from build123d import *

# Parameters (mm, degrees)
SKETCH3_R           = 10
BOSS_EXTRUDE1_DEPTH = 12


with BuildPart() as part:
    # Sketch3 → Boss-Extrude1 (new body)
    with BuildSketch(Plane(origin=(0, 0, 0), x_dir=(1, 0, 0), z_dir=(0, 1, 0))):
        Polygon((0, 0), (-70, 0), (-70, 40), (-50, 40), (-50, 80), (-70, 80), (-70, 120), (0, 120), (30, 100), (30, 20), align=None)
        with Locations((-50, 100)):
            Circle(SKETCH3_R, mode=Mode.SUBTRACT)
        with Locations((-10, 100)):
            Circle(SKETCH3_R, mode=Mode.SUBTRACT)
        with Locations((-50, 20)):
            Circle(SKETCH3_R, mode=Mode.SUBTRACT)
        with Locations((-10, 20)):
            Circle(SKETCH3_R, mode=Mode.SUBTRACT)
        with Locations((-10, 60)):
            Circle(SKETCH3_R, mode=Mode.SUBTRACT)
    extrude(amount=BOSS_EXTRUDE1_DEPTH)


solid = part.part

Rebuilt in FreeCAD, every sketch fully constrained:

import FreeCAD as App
import Part
import Sketcher
from FreeCAD import Vector

doc = App.newDocument("Part")
body = doc.addObject("PartDesign::Body", "Body")

sketch1 = body.newObject("Sketcher::SketchObject", "Sketch")
sketch1.AttachmentSupport = (doc.getObject("XZ_Plane"), [""])
sketch1.MapMode = "FlatFace"
sketch1.addGeometry(Part.LineSegment(Vector(-70, 0, 0), Vector(0, 0, 0)), False)
sketch1.addGeometry(Part.LineSegment(Vector(0, 0, 0), Vector(30, -20, 0)), False)
sketch1.addGeometry(Part.LineSegment(Vector(30, -20, 0), Vector(30, -100, 0)), False)
sketch1.addGeometry(Part.LineSegment(Vector(30, -100, 0), Vector(0, -120, 0)), False)
sketch1.addGeometry(Part.LineSegment(Vector(0, -120, 0), Vector(-70, -120, 0)), False)
sketch1.addGeometry(Part.LineSegment(Vector(-70, -120, 0), Vector(-70, -80, 0)), False)
sketch1.addGeometry(Part.LineSegment(Vector(-70, -80, 0), Vector(-50, -80, 0)), False)
sketch1.addGeometry(Part.LineSegment(Vector(-50, -80, 0), Vector(-50, -40, 0)), False)
sketch1.addGeometry(Part.LineSegment(Vector(-50, -40, 0), Vector(-70, -40, 0)), False)
sketch1.addGeometry(Part.LineSegment(Vector(-70, -40, 0), Vector(-70, 0, 0)), False)
sketch1.addGeometry(Part.Circle(Vector(-10, -20, 0), Vector(0, 0, 1), 10), False)
sketch1.addGeometry(Part.Circle(Vector(-50, -20, 0), Vector(0, 0, 1), 10), False)
sketch1.addGeometry(Part.Circle(Vector(-10, -60, 0), Vector(0, 0, 1), 10), False)
sketch1.addGeometry(Part.Circle(Vector(-10, -100, 0), Vector(0, 0, 1), 10), False)
sketch1.addGeometry(Part.Circle(Vector(-50, -100, 0), Vector(0, 0, 1), 10), False)
sketch1.addConstraint(Sketcher.Constraint("Coincident", 0, 2, 1, 1))
sketch1.addConstraint(Sketcher.Constraint("Coincident", 1, 2, 2, 1))
sketch1.addConstraint(Sketcher.Constraint("Coincident", 2, 2, 3, 1))
sketch1.addConstraint(Sketcher.Constraint("Coincident", 3, 2, 4, 1))
sketch1.addConstraint(Sketcher.Constraint("Coincident", 4, 2, 5, 1))
sketch1.addConstraint(Sketcher.Constraint("Coincident", 5, 2, 6, 1))
sketch1.addConstraint(Sketcher.Constraint("Coincident", 6, 2, 7, 1))
sketch1.addConstraint(Sketcher.Constraint("Coincident", 7, 2, 8, 1))
sketch1.addConstraint(Sketcher.Constraint("Coincident", 8, 2, 9, 1))
sketch1.addConstraint(Sketcher.Constraint("Coincident", 9, 2, 0, 1))
sketch1.addConstraint(Sketcher.Constraint("Horizontal", 0))
sketch1.addConstraint(Sketcher.Constraint("Vertical", 2))
sketch1.addConstraint(Sketcher.Constraint("Horizontal", 4))
sketch1.addConstraint(Sketcher.Constraint("Vertical", 5))
sketch1.addConstraint(Sketcher.Constraint("Horizontal", 6))
sketch1.addConstraint(Sketcher.Constraint("Vertical", 7))
sketch1.addConstraint(Sketcher.Constraint("Horizontal", 8))
sketch1.addConstraint(Sketcher.Constraint("Vertical", 9))
sketch1.addConstraint(Sketcher.Constraint("Coincident", 0, 2, -1, 1))
sketch1.addConstraint(Sketcher.Constraint("Equal", 10, 11))
sketch1.addConstraint(Sketcher.Constraint("Equal", 11, 12))
sketch1.addConstraint(Sketcher.Constraint("Equal", 12, 13))
sketch1.addConstraint(Sketcher.Constraint("Equal", 13, 14))
sketch1.addConstraint(Sketcher.Constraint("PointOnObject", 3, 2, -2))
sketch1.addConstraint(Sketcher.Constraint("Horizontal", 10, 3, 11, 3))
sketch1.addConstraint(Sketcher.Constraint("Horizontal", 13, 3, 14, 3))
sketch1.addConstraint(Sketcher.Constraint("Horizontal", 11, 3, 1, 2))
sketch1.addConstraint(Sketcher.Constraint("Horizontal", 14, 3, 2, 2))
sketch1.addConstraint(Sketcher.Constraint("Vertical", 10, 3, 12, 3))
sketch1.addConstraint(Sketcher.Constraint("Vertical", 12, 3, 13, 3))
sketch1.addConstraint(Sketcher.Constraint("Vertical", 11, 3, 14, 3))
sketch1.addConstraint(Sketcher.Constraint("Vertical", 14, 3, 6, 2))
sketch1.addConstraint(Sketcher.Constraint("Vertical", 5, 2, 8, 2))
sketch1.addConstraint(Sketcher.Constraint("Equal", 5, 7))
sketch1.addConstraint(Sketcher.Constraint("Equal", 7, 9))
sketch1.addConstraint(Sketcher.Constraint("Equal", 1, 3))
sketch1.addConstraint(Sketcher.Constraint("Diameter", 10, 20.0))
sketch1.addConstraint(Sketcher.Constraint("DistanceX", 0, 1, 0, 2, 70.0))
sketch1.addConstraint(Sketcher.Constraint("DistanceX", 6, 1, 6, 2, 20.0))
sketch1.addConstraint(Sketcher.Constraint("DistanceY", 2, 2, 2, 1, 80.0))
sketch1.addConstraint(Sketcher.Constraint("DistanceY", 5, 1, 5, 2, 40.0))
sketch1.addConstraint(Sketcher.Constraint("DistanceX", 10, 3, -1, 1, 10.0))
sketch1.addConstraint(Sketcher.Constraint("DistanceY", 12, 3, -1, 1, 60.0))
sketch1.addConstraint(Sketcher.Constraint("DistanceX", -1, 1, 1, 2, 30.0))
pad1 = body.newObject("PartDesign::Pad", "Pad")
pad1.Profile = sketch1
pad1.Length = 12
pad1.Reversed = True

doc.recompute()
